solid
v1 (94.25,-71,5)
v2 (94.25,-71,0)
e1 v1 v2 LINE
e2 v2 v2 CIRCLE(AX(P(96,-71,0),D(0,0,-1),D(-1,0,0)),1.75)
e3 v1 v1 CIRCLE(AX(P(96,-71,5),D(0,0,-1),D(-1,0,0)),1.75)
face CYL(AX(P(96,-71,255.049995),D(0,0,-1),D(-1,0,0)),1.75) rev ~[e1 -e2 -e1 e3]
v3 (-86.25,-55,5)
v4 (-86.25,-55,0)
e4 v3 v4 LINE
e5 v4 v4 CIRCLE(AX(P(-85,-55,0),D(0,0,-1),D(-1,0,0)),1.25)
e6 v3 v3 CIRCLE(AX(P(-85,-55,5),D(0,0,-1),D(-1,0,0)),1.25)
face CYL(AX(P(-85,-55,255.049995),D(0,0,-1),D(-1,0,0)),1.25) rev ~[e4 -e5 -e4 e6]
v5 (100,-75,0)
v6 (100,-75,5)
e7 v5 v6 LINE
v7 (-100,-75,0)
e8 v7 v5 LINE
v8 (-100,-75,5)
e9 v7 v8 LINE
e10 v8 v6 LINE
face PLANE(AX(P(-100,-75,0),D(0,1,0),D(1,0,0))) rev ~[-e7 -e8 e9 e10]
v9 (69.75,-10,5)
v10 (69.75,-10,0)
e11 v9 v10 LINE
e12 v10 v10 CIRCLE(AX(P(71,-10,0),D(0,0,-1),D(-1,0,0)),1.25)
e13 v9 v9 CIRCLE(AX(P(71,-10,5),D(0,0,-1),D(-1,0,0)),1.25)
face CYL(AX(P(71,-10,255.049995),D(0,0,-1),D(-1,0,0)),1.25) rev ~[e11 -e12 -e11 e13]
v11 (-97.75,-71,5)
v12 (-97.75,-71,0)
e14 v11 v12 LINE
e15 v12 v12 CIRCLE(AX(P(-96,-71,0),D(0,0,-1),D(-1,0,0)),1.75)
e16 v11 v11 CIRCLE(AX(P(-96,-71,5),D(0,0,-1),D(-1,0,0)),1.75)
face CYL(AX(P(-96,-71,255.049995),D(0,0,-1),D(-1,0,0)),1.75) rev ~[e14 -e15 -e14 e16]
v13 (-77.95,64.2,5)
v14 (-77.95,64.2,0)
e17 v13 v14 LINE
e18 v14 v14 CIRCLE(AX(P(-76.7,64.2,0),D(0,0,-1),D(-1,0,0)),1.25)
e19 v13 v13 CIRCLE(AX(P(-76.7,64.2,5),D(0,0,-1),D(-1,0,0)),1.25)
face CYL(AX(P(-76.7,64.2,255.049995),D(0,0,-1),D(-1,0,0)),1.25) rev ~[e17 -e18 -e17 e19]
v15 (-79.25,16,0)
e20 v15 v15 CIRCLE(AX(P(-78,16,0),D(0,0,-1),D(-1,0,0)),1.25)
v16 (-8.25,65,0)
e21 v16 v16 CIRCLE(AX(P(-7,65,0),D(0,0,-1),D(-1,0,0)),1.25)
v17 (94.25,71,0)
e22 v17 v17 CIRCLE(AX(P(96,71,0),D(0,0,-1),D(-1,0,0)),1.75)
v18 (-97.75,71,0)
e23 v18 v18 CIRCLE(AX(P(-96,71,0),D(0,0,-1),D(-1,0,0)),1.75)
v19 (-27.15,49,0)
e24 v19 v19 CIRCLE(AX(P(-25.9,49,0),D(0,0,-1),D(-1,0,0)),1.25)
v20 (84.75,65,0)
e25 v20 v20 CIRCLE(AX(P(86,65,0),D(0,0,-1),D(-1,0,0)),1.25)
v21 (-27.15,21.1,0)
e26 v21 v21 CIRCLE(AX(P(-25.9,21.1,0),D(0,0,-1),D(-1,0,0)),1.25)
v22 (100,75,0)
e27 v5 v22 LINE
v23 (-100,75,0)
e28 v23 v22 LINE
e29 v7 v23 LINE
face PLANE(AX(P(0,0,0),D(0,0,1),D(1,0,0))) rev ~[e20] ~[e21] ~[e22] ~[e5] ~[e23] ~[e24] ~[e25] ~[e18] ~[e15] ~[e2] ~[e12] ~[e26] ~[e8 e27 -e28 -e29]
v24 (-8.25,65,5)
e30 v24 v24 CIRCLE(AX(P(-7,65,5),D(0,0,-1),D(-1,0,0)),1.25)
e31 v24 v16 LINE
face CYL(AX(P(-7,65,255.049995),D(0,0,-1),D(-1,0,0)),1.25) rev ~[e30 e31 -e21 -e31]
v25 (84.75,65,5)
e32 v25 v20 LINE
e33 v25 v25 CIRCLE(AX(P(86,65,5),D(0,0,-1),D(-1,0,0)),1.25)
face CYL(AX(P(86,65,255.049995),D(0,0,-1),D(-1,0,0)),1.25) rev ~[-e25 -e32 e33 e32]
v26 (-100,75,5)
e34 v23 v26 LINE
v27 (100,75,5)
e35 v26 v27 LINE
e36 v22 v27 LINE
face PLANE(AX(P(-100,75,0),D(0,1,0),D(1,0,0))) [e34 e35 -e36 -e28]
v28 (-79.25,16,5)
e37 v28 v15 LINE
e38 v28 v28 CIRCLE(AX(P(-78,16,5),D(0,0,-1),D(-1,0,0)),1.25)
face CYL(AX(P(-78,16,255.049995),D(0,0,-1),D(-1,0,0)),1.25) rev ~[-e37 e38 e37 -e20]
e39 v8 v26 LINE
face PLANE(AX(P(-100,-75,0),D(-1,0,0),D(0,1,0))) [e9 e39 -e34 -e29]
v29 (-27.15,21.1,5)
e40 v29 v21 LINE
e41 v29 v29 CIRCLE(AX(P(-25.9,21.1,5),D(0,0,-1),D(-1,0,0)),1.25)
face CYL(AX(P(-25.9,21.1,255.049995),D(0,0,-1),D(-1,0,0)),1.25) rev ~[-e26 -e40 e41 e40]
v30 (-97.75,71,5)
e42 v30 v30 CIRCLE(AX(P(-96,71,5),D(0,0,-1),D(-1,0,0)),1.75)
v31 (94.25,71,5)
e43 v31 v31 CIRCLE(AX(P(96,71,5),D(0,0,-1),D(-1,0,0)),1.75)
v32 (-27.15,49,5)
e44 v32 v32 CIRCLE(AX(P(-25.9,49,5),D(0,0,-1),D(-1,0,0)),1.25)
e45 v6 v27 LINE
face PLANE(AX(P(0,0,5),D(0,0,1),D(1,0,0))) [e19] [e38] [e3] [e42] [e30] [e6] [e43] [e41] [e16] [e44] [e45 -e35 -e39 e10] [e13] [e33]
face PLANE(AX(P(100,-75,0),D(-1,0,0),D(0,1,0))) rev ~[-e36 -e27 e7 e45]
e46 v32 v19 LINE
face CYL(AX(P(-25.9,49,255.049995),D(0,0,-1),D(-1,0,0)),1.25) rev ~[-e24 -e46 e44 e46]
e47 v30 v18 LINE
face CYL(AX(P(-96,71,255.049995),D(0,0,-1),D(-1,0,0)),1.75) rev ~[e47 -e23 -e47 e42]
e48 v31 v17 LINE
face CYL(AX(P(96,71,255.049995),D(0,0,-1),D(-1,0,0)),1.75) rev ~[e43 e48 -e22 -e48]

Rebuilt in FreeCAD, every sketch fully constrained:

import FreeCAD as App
import Part
import Sketcher

V = App.Vector
Q = App.Units.Quantity


def add_polygon(sketch, points):
    """Adds a closed chain of lines whose ends are joined by coincident constraints."""
    first, n = sketch.GeometryCount, len(points)
    for a, b in zip(points, points[1:] + points[:1]):
        sketch.addGeometry(Part.LineSegment(App.Vector(*a, 0), App.Vector(*b, 0)), False)
    for i in range(n):
        sketch.addConstraint(Sketcher.Constraint("Coincident", first + i, 2, first + (i + 1) % n, 1))

doc = App.newDocument("Part")
body = doc.addObject("PartDesign::Body", "Body")

sketch1 = body.newObject("Sketcher::SketchObject", "Sketch")
sketch1.AttachmentSupport = (doc.getObject("XY_Plane"), [""])
sketch1.MapMode = "FlatFace"
add_polygon(sketch1, [(-100, 75), (-100, -75), (100, -75), (100, 75)])
sketch1.addGeometry(Part.Circle(V(-96, -71, 0), V(0, 0, 1), 1.6), False)
sketch1.addGeometry(Part.Circle(V(96, -71, 0), V(0, 0, 1), 1.6), False)
sketch1.addGeometry(Part.Circle(V(-96, 71, 0), V(0, 0, 1), 1.6), False)
sketch1.addGeometry(Part.Circle(V(96, 71, 0), V(0, 0, 1), 1.6), False)
sketch1.addConstraint([
    Sketcher.Constraint("Vertical", 0),
    Sketcher.Constraint("Horizontal", 1),
    Sketcher.Constraint("Vertical", 2),
    Sketcher.Constraint("Horizontal", 3),
    Sketcher.Constraint("Equal", 4, 5),
    Sketcher.Constraint("Equal", 5, 6),
    Sketcher.Constraint("Equal", 6, 7),
    Sketcher.Constraint("Symmetric", 5, 3, 6, 3, -1, 1),
    Sketcher.Constraint("Symmetric", 4, 3, 7, 3, -1, 1),
    Sketcher.Constraint("Symmetric", 0, 2, 2, 2, -1, 1),
    Sketcher.Constraint("Symmetric", 4, 3, 5, 3, -2),
    Sketcher.Constraint("Diameter", 4, Q("3.2 mm")),
    Sketcher.Constraint("DistanceX", 1, 1, 1, 2, Q("200 mm")),
    Sketcher.Constraint("DistanceY", 0, 2, 0, 1, Q("150 mm")),
    Sketcher.Constraint("DistanceX", 4, 3, -1, 1, Q("96 mm")),
    Sketcher.Constraint("DistanceY", 4, 3, -1, 1, Q("71 mm")),
])
pad1 = body.newObject("PartDesign::Pad", "Pad")
pad1.Profile = sketch1
pad1.Length = 5

sketch2 = body.newObject("Sketcher::SketchObject", "Sketch001")
sketch2.AttachmentSupport = (doc.getObject("XY_Plane"), [""])
sketch2.MapMode = "FlatFace"
sketch2.AttachmentOffset = App.Placement(V(0, 0, 5), App.Rotation())
sketch2.addGeometry([
    Part.Circle(V(-76.7, 64.2, 0), V(0, 0, 1), 1.2),
    Part.Circle(V(-25.9, 49, 0), V(0, 0, 1), 1.2),
    Part.Circle(V(-25.9, 21.1, 0), V(0, 0, 1), 1.2),
    Part.Circle(V(-78, 16, 0), V(0, 0, 1), 1.2),
    Part.Circle(V(-85, -55, 0), V(0, 0, 1), 1.2),
    Part.Circle(V(71, -10, 0), V(0, 0, 1), 1.2),
    Part.Circle(V(-7, 65, 0), V(0, 0, 1), 1.2),
    Part.Circle(V(86, 65, 0), V(0, 0, 1), 1.2),
], False)
sketch2.addConstraint([
    Sketcher.Constraint("Equal", 0, 1),
    Sketcher.Constraint("Equal", 1, 2),
    Sketcher.Constraint("Equal", 2, 3),
    Sketcher.Constraint("Equal", 3, 4),
    Sketcher.Constraint("Equal", 4, 5),
    Sketcher.Constraint("Equal", 5, 6),
    Sketcher.Constraint("Equal", 6, 7),
    Sketcher.Constraint("Horizontal", 6, 3, 7, 3),
    Sketcher.Constraint("Vertical", 1, 3, 2, 3),
    Sketcher.Constraint("Diameter", 0, Q("2.5 mm")),
    Sketcher.Constraint("DistanceY", -1, 1, 1, 3, Q("49 mm")),
    Sketcher.Constraint("DistanceX", 3, 3, -1, 1, Q("78 mm")),
    Sketcher.Constraint("DistanceY", -1, 1, 3, 3, Q("16 mm")),
    Sketcher.Constraint("DistanceX", 4, 3, -1, 1, Q("85 mm")),
    Sketcher.Constraint("DistanceY", 4, 3, -1, 1, Q("55 mm")),
    Sketcher.Constraint("DistanceX", -1, 1, 5, 3, Q("71 mm")),
    Sketcher.Constraint("DistanceY", 5, 3, -1, 1, Q("10 mm")),
    Sketcher.Constraint("DistanceX", 6, 3, -1, 1, Q("7 mm")),
    Sketcher.Constraint("DistanceY", -1, 1, 6, 3, Q("65 mm")),
    Sketcher.Constraint("DistanceX", -1, 1, 7, 3, Q("86 mm")),
    Sketcher.Constraint("DistanceX", 0, 3, -1, 1, Q("76.7 mm")),
    Sketcher.Constraint("DistanceY", -1, 1, 0, 3, Q("64.2 mm")),
    Sketcher.Constraint("DistanceX", 1, 3, -1, 1, Q("25.9 mm")),
    Sketcher.Constraint("DistanceY", -1, 1, 2, 3, Q("21.1 mm")),
])
doc.recompute()
hole = body.newObject("PartDesign::Hole", "Hole")
hole.Profile = sketch2
hole.ThreadType = "None"
hole.Diameter = 2.5
hole.DepthType = "ThroughAll"

sketch3 = body.newObject("Sketcher::SketchObject", "Sketch002")
sketch3.AttachmentSupport = (doc.getObject("XY_Plane"), [""])
sketch3.MapMode = "FlatFace"
sketch3.AttachmentOffset = App.Placement(V(0, 0, 5), App.Rotation())
sketch3.addGeometry([
    Part.Circle(V(-96, -71, 0), V(0, 0, 1), 1.8),
    Part.Circle(V(-96, 71, 0), V(0, 0, 1), 1.8),
    Part.Circle(V(96, 71, 0), V(0, 0, 1), 1.8),
    Part.Circle(V(96, -71, 0), V(0, 0, 1), 1.8),
], False)
sketch3.addConstraint([
    Sketcher.Constraint("Equal", 0, 1),
    Sketcher.Constraint("Equal", 1, 2),
    Sketcher.Constraint("Equal", 2, 3),
    Sketcher.Constraint("Symmetric", 0, 3, 2, 3, -1, 1),
    Sketcher.Constraint("Symmetric", 1, 3, 3, 3, -1, 1),
    Sketcher.Constraint("Symmetric", 1, 3, 2, 3, -2),
    Sketcher.Constraint("Diameter", 0, Q("3.5 mm")),
    Sketcher.Constraint("DistanceX", 0, 3, -1, 1, Q("96 mm")),
    Sketcher.Constraint("DistanceY", 0, 3, -1, 1, Q("71 mm")),
])
doc.recompute()
hole2 = body.newObject("PartDesign::Hole", "Hole001")
hole2.Profile = sketch3
hole2.ThreadType = "None"
hole2.Diameter = 3.5
hole2.DepthType = "ThroughAll"

doc.recompute()
